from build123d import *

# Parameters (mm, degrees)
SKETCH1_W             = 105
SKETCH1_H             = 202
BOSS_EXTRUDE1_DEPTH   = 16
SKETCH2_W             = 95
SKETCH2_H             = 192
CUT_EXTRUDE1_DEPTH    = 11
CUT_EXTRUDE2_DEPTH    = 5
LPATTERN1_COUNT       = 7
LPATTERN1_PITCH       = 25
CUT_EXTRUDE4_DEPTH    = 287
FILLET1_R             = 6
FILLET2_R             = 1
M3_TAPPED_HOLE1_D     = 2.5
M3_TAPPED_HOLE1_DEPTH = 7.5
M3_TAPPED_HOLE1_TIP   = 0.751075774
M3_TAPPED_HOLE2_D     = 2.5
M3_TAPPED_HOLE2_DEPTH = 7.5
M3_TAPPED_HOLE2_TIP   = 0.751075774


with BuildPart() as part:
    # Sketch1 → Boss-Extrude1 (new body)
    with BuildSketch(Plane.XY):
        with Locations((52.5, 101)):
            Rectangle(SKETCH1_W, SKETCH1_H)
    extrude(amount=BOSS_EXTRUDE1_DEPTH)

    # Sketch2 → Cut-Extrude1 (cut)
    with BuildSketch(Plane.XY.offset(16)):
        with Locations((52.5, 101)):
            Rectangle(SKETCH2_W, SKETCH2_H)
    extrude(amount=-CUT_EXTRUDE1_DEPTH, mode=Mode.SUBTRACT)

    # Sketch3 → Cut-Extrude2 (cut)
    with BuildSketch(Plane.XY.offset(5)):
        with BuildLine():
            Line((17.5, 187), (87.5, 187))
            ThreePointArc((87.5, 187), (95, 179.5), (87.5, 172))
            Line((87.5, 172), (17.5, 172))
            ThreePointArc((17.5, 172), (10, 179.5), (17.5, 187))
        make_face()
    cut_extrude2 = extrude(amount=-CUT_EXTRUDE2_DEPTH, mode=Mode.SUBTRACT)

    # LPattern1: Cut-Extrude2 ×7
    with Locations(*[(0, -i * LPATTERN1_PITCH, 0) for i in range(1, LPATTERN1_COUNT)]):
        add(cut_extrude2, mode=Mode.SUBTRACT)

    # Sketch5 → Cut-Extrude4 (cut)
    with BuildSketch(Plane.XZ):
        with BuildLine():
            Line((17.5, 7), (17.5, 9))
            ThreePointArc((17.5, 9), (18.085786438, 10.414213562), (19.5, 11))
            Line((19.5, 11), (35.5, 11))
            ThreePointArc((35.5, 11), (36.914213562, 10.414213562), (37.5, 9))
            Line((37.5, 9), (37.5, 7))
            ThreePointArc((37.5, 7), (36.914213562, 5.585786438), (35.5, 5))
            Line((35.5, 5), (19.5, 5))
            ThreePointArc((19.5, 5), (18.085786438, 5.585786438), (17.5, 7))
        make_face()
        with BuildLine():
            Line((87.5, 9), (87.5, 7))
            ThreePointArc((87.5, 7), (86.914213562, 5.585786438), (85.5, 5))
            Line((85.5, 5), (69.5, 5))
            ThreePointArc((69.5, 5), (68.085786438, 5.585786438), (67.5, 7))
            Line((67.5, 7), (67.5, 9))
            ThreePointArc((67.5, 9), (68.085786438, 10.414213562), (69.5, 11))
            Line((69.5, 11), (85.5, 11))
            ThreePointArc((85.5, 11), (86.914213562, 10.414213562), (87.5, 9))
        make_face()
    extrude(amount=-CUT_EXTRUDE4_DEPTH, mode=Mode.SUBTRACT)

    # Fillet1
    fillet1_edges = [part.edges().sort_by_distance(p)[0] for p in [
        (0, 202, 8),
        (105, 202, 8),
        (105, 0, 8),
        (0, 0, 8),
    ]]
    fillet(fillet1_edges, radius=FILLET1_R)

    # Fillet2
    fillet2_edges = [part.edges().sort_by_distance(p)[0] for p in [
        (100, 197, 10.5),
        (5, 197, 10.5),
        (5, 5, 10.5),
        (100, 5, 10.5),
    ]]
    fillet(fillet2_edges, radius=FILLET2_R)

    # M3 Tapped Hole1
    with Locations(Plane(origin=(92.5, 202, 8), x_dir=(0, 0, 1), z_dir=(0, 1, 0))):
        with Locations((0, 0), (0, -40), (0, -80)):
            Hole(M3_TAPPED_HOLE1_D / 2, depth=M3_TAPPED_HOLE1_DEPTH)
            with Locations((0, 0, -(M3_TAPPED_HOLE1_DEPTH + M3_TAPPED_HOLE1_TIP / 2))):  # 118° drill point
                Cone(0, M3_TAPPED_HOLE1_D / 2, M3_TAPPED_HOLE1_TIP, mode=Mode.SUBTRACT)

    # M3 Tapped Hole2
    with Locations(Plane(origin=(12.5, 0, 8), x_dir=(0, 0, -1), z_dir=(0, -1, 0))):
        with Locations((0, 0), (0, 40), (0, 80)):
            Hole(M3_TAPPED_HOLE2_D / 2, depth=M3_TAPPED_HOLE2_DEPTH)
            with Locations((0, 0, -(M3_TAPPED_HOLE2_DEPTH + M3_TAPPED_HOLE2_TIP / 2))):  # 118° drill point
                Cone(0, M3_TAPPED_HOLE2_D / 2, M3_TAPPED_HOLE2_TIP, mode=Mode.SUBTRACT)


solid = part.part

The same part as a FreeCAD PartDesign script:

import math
import FreeCAD as App
import Part
import Sketcher

V = App.Vector


def edges_at(feature, points):
    """Names of the edges that pass closest to the given points."""
    edges = feature.Shape.Edges
    near = lambda p: min(range(len(edges)), key=lambda i: edges[i].distToShape(Part.Vertex(*p))[0])
    return sorted({f"Edge{near(p) + 1}" for p in points})


def add_polygon(sketch, points):
    """Adds a closed chain of lines whose ends are joined by coincident constraints."""
    first, n = sketch.GeometryCount, len(points)
    for a, b in zip(points, points[1:] + points[:1]):
        sketch.addGeometry(Part.LineSegment(App.Vector(*a, 0), App.Vector(*b, 0)), False)
    for i in range(n):
        sketch.addConstraint(Sketcher.Constraint("Coincident", first + i, 2, first + (i + 1) % n, 1))

doc = App.newDocument("Part")
body = doc.addObject("PartDesign::Body", "Body")

sketch1 = body.newObject("Sketcher::SketchObject", "Sketch")
sketch1.AttachmentSupport = (doc.getObject("XY_Plane"), [""])
sketch1.MapMode = "FlatFace"
add_polygon(sketch1, [(0, 202), (0, 0), (105, 0), (105, 202)])
sketch1.addConstraint([
    Sketcher.Constraint("Vertical", 0),
    Sketcher.Constraint("Horizontal", 1),
    Sketcher.Constraint("Vertical", 2),
    Sketcher.Constraint("Horizontal", 3),
    Sketcher.Constraint("Coincident", 0, 2, -1, 1),
    Sketcher.Constraint("DistanceX", 1, 1, 1, 2, 105.0),
    Sketcher.Constraint("DistanceY", 0, 2, 0, 1, 202.0),
])
pad1 = body.newObject("PartDesign::Pad", "Pad")
pad1.Profile = sketch1
pad1.Length = 16

sketch2 = body.newObject("Sketcher::SketchObject", "Sketch001")
sketch2.AttachmentSupport = (doc.getObject("XY_Plane"), [""])
sketch2.MapMode = "FlatFace"
sketch2.AttachmentOffset = App.Placement(V(0, 0, 16), App.Rotation())
add_polygon(sketch2, [(5, 197), (5, 5), (100, 5), (100, 197)])
sketch2.addConstraint([
    Sketcher.Constraint("Vertical", 0),
    Sketcher.Constraint("Horizontal", 1),
    Sketcher.Constraint("Vertical", 2),
    Sketcher.Constraint("Horizontal", 3),
    Sketcher.Constraint("DistanceX", 1, 1, 1, 2, 95.0),
    Sketcher.Constraint("DistanceY", 0, 2, 0, 1, 192.0),
    Sketcher.Constraint("DistanceX", -1, 1, 0, 2, 5.0),
    Sketcher.Constraint("DistanceY", -1, 1, 0, 2, 5.0),
])
pocket1 = body.newObject("PartDesign::Pocket", "Pocket")
pocket1.Profile = sketch2
pocket1.Length = 11

sketch3 = body.newObject("Sketcher::SketchObject", "Sketch002")
sketch3.AttachmentSupport = (doc.getObject("XY_Plane"), [""])
sketch3.MapMode = "FlatFace"
sketch3.AttachmentOffset = App.Placement(V(0, 0, 5), App.Rotation())
sketch3.addGeometry([
    Part.LineSegment(V(88, 187, 0), V(18, 187, 0)),
    Part.ArcOfCircle(Part.Circle(V(18, 180, 0), V(0, 0, 1), 8), math.radians(90), math.radians(270)),
    Part.LineSegment(V(18, 172, 0), V(88, 172, 0)),
    Part.ArcOfCircle(Part.Circle(V(88, 180, 0), V(0, 0, 1), 8), math.radians(-90), math.radians(90)),
], False)
sketch3.addConstraint([
    Sketcher.Constraint("Tangent", 0, 2, 1, 1),
    Sketcher.Constraint("Tangent", 1, 2, 2, 1),
    Sketcher.Constraint("Tangent", 2, 2, 3, 1),
    Sketcher.Constraint("Tangent", 3, 2, 0, 1),
    Sketcher.Constraint("Horizontal", 0),
    Sketcher.Constraint("Horizontal", 2),
    Sketcher.Constraint("Radius", 1, 7.5),
    Sketcher.Constraint("DistanceX", 0, 2, 0, 1, 70.0),
    Sketcher.Constraint("DistanceY", -1, 1, 0, 2, 187.0),
    Sketcher.Constraint("DistanceX", -1, 1, 1, 3, 17.5),
])
pocket2 = body.newObject("PartDesign::Pocket", "Pocket001")
pocket2.Profile = sketch3
pocket2.Length = 5
doc.recompute()

linearpattern = body.newObject("PartDesign::LinearPattern", "LinearPattern")
linearpattern.Originals = [pocket2]
linearpattern.Direction = (doc.getObject("Y_Axis"), [""])
linearpattern.Mode = "offset"
linearpattern.Offset = 25
linearpattern.Occurrences = 7
linearpattern.Reversed = True
body.Tip = linearpattern

sketch4 = body.newObject("Sketcher::SketchObject", "Sketch003")
sketch4.AttachmentSupport = (doc.getObject("XZ_Plane"), [""])
sketch4.MapMode = "FlatFace"
sketch4.addGeometry([
    Part.LineSegment(V(17.5, 9, 0), V(17.5, 7, 0)),
    Part.ArcOfCircle(Part.Circle(V(19.5, 7, 0), V(0, 0, 1), 2), math.radians(-180), math.radians(-90)),
    Part.LineSegment(V(19.5, 5, 0), V(35.5, 5, 0)),
    Part.ArcOfCircle(Part.Circle(V(35.5, 7, 0), V(0, 0, 1), 2), math.radians(-90), math.radians(0)),
    Part.LineSegment(V(37.5, 7, 0), V(37.5, 9, 0)),
    Part.ArcOfCircle(Part.Circle(V(35.5, 9, 0), V(0, 0, 1), 2), math.radians(0), math.radians(90)),
    Part.LineSegment(V(35.5, 11, 0), V(19.5, 11, 0)),
    Part.ArcOfCircle(Part.Circle(V(19.5, 9, 0), V(0, 0, 1), 2), math.radians(90), math.radians(180)),
    Part.LineSegment(V(87.5, 7, 0), V(87.5, 9, 0)),
    Part.ArcOfCircle(Part.Circle(V(85.5, 9, 0), V(0, 0, 1), 2), math.radians(0), math.radians(90)),
    Part.LineSegment(V(85.5, 11, 0), V(69.5, 11, 0)),
    Part.ArcOfCircle(Part.Circle(V(69.5, 9, 0), V(0, 0, 1), 2), math.radians(90), math.radians(180)),
    Part.LineSegment(V(67.5, 9, 0), V(67.5, 7, 0)),
    Part.ArcOfCircle(Part.Circle(V(69.5, 7, 0), V(0, 0, 1), 2), math.radians(-180), math.radians(-90)),
    Part.LineSegment(V(69.5, 5, 0), V(85.5, 5, 0)),
    Part.ArcOfCircle(Part.Circle(V(85.5, 7, 0), V(0, 0, 1), 2), math.radians(-90), math.radians(0)),
], False)
sketch4.addConstraint([
    Sketcher.Constraint("Tangent", 0, 2, 1, 1),
    Sketcher.Constraint("Tangent", 1, 2, 2, 1),
    Sketcher.Constraint("Tangent", 2, 2, 3, 1),
    Sketcher.Constraint("Tangent", 3, 2, 4, 1),
    Sketcher.Constraint("Tangent", 4, 2, 5, 1),
    Sketcher.Constraint("Tangent", 5, 2, 6, 1),
    Sketcher.Constraint("Tangent", 6, 2, 7, 1),
    Sketcher.Constraint("Tangent", 7, 2, 0, 1),
    Sketcher.Constraint("Tangent", 8, 2, 9, 1),
    Sketcher.Constraint("Tangent", 9, 2, 10, 1),
    Sketcher.Constraint("Tangent", 10, 2, 11, 1),
    Sketcher.Constraint("Tangent", 11, 2, 12, 1),
    Sketcher.Constraint("Tangent", 12, 2, 13, 1),
    Sketcher.Constraint("Tangent", 13, 2, 14, 1),
    Sketcher.Constraint("Tangent", 14, 2, 15, 1),
    Sketcher.Constraint("Tangent", 15, 2, 8, 1),
    Sketcher.Constraint("Vertical", 0),
    Sketcher.Constraint("Horizontal", 2),
    Sketcher.Constraint("Vertical", 4),
    Sketcher.Constraint("Horizontal", 6),
    Sketcher.Constraint("Vertical", 8),
    Sketcher.Constraint("Horizontal", 10),
    Sketcher.Constraint("Vertical", 12),
    Sketcher.Constraint("Horizontal", 14),
    Sketcher.Constraint("Equal", 1, 3),
    Sketcher.Constraint("Equal", 3, 5),
    Sketcher.Constraint("Equal", 5, 7),
    Sketcher.Constraint("Equal", 7, 9),
    Sketcher.Constraint("Equal", 9, 11),
    Sketcher.Constraint("Equal", 11, 13),
    Sketcher.Constraint("Equal", 13, 15),
    Sketcher.Constraint("Horizontal", 7, 3, 9, 3),
    Sketcher.Constraint("Horizontal", 3, 3, 13, 3),
    Sketcher.Constraint("Equal", 6, 10),
    Sketcher.Constraint("Radius", 1, 2.0),
    Sketcher.Constraint("DistanceX", 2, 1, 2, 2, 16.0),
    Sketcher.Constraint("DistanceY", 0, 2, 0, 1, 2.0),
    Sketcher.Constraint("DistanceY", -1, 1, 1, 3, 7.0),
    Sketcher.Constraint("DistanceX", 5, 3, 9, 3, 50.0),
    Sketcher.Constraint("DistanceX", -1, 1, 1, 3, 19.5),
])
pocket3 = body.newObject("PartDesign::Pocket", "Pocket002")
pocket3.Profile = sketch4
pocket3.Length = 287
doc.recompute()

fillet = body.newObject("PartDesign::Fillet", "Fillet")
fillet.Base = (pocket3, edges_at(pocket3, [
    (0, 202, 8),
    (105, 202, 8),
    (105, 0, 8),
    (0, 0, 8),
]))
fillet.Radius = 6
doc.recompute()

fillet2 = body.newObject("PartDesign::Fillet", "Fillet001")
fillet2.Base = (fillet, edges_at(fillet, [
    (100, 197, 10.5),
    (5, 197, 10.5),
    (5, 5, 10.5),
    (100, 5, 10.5),
]))
fillet2.Radius = 1

sketch5 = body.newObject("Sketcher::SketchObject", "Sketch004")
sketch5.AttachmentSupport = (doc.getObject("XZ_Plane"), [""])
sketch5.MapMode = "FlatFace"
sketch5.AttachmentOffset = App.Placement(V(0, 0, -202), App.Rotation())
sketch5.addGeometry([
    Part.Circle(V(92.5, 8, 0), V(0, 0, 1), 1.2),
    Part.Circle(V(52.5, 8, 0), V(0, 0, 1), 1.2),
    Part.Circle(V(12.5, 8, 0), V(0, 0, 1), 1.2),
], False)
sketch5.addConstraint([
    Sketcher.Constraint("Equal", 0, 1),
    Sketcher.Constraint("Equal", 1, 2),
    Sketcher.Constraint("Horizontal", 0, 3, 1, 3),
    Sketcher.Constraint("Horizontal", 1, 3, 2, 3),
    Sketcher.Constraint("Diameter", 0, 2.5),
    Sketcher.Constraint("DistanceY", -1, 1, 0, 3, 8.0),
    Sketcher.Constraint("DistanceX", 1, 3, 0, 3, 40.0),
    Sketcher.Constraint("DistanceX", 2, 3, 1, 3, 40.0),
    Sketcher.Constraint("DistanceX", -1, 1, 0, 3, 92.5),
])
doc.recompute()
hole = body.newObject("PartDesign::Hole", "Hole")
hole.Profile = sketch5
hole.ThreadType = "None"
hole.Diameter = 2.5
hole.DepthType = "Dimension"
hole.Depth = 7.5
hole.DrillPoint = "Angled"
hole.DrillPointAngle = 118
hole.Reversed = True

sketch6 = body.newObject("Sketcher::SketchObject", "Sketch005")
sketch6.AttachmentSupport = (doc.getObject("XZ_Plane"), [""])
sketch6.MapMode = "FlatFace"
sketch6.addGeometry([
    Part.Circle(V(12.5, 8, 0), V(0, 0, 1), 1.2),
    Part.Circle(V(52.5, 8, 0), V(0, 0, 1), 1.2),
    Part.Circle(V(92.5, 8, 0), V(0, 0, 1), 1.2),
], False)
sketch6.addConstraint([
    Sketcher.Constraint("Equal", 0, 1),
    Sketcher.Constraint("Equal", 1, 2),
    Sketcher.Constraint("Horizontal", 0, 3, 1, 3),
    Sketcher.Constraint("Horizontal", 1, 3, 2, 3),
    Sketcher.Constraint("Diameter", 0, 2.5),
    Sketcher.Constraint("DistanceY", -1, 1, 0, 3, 8.0),
    Sketcher.Constraint("DistanceX", 0, 3, 1, 3, 40.0),
    Sketcher.Constraint("DistanceX", 1, 3, 2, 3, 40.0),
    Sketcher.Constraint("DistanceX", -1, 1, 0, 3, 12.5),
])
doc.recompute()
hole2 = body.newObject("PartDesign::Hole", "Hole001")
hole2.Profile = sketch6
hole2.ThreadType = "None"
hole2.Diameter = 2.5
hole2.DepthType = "Dimension"
hole2.Depth = 7.5
hole2.DrillPoint = "Angled"
hole2.DrillPointAngle = 118

doc.recompute()
